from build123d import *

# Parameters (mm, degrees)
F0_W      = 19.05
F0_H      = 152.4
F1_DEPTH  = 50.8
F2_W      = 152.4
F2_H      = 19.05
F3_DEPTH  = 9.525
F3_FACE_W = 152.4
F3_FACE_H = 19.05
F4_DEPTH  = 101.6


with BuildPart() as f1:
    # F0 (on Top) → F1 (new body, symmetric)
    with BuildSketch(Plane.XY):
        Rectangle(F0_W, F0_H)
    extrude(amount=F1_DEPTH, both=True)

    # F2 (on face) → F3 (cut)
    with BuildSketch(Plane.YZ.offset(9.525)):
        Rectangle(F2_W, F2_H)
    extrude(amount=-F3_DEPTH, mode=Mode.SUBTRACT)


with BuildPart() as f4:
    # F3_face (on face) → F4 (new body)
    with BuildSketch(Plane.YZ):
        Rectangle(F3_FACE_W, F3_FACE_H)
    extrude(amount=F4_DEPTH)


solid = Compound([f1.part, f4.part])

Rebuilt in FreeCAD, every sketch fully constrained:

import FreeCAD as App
import Part
import Sketcher
Q = App.Units.Quantity

doc = App.newDocument("Part")
params = doc.addObject("Spreadsheet::Sheet", "Params")
for row, (alias, value) in enumerate([
    ("sketch1_height", "6 in"),
    ("sketch1_width", "0.75 in"),
    ("pad1_length", "4 in"),
    ("sketch2_width", "6 in"),
    ("sketch2_height", "0.75 in"),
    ("pocket1_length", "0.375 in"),
    ("sketch3_width", "6 in"),
    ("sketch3_height", "0.75 in"),
    ("pad2_length", "4 in"),
], start=1):
    params.set(f"A{row}", alias)
    params.set(f"B{row}", "=" + value)
    params.setAlias(f"B{row}", alias)

body = doc.addObject("PartDesign::Body", "Body")

# Sketch on XY plane
sketch1 = body.newObject("Sketcher::SketchObject", "Sketch")
sketch1.AttachmentSupport = (doc.getObject("XY_Plane"), [""])
sketch1.MapMode = "FlatFace"
sketch1.addGeometry([
    Part.LineSegment(App.Vector(-10, 76, 0), App.Vector(-10, -76, 0)),
    Part.LineSegment(App.Vector(-10, -76, 0), App.Vector(10, -76, 0)),
    Part.LineSegment(App.Vector(10, -76, 0), App.Vector(10, 76, 0)),
    Part.LineSegment(App.Vector(10, 76, 0), App.Vector(-10, 76, 0)),
], False)
sketch1.addConstraint([
    Sketcher.Constraint("Coincident", 0, 2, 1, 1),
    Sketcher.Constraint("Coincident", 1, 2, 2, 1),
    Sketcher.Constraint("Coincident", 2, 2, 3, 1),
    Sketcher.Constraint("Coincident", 3, 2, 0, 1),
    Sketcher.Constraint("Vertical", 0),
    Sketcher.Constraint("Horizontal", 1),
    Sketcher.Constraint("Vertical", 2),
    Sketcher.Constraint("Horizontal", 3),
    Sketcher.Constraint("Symmetric", 0, 2, 2, 2, -1, 1),
    Sketcher.Constraint("DistanceY", 0, 2, 0, 1, Q("6 in")),
    Sketcher.Constraint("DistanceX", 1, 1, 1, 2, Q("0.75 in")),
])
sketch1.setExpression("Constraints[9]", "Params.sketch1_height")
sketch1.setExpression("Constraints[10]", "Params.sketch1_width")
pad1 = body.newObject("PartDesign::Pad", "Pad")
pad1.Profile = sketch1
pad1.setExpression("Length", "Params.pad1_length")
pad1.Midplane = True

# Sketch on YZ plane
sketch2 = body.newObject("Sketcher::SketchObject", "Sketch001")
sketch2.AttachmentSupport = (doc.getObject("YZ_Plane"), [""])
sketch2.MapMode = "FlatFace"
sketch2.AttachmentOffset = App.Placement(App.Vector(0, 0, 0.375 * 25.4), App.Rotation())
sketch2.addGeometry([
    Part.LineSegment(App.Vector(-76, 10, 0), App.Vector(-76, -10, 0)),
    Part.LineSegment(App.Vector(-76, -10, 0), App.Vector(76, -10, 0)),
    Part.LineSegment(App.Vector(76, -10, 0), App.Vector(76, 10, 0)),
    Part.LineSegment(App.Vector(76, 10, 0), App.Vector(-76, 10, 0)),
], False)
sketch2.addConstraint([
    Sketcher.Constraint("Coincident", 0, 2, 1, 1),
    Sketcher.Constraint("Coincident", 1, 2, 2, 1),
    Sketcher.Constraint("Coincident", 2, 2, 3, 1),
    Sketcher.Constraint("Coincident", 3, 2, 0, 1),
    Sketcher.Constraint("Vertical", 0),
    Sketcher.Constraint("Horizontal", 1),
    Sketcher.Constraint("Vertical", 2),
    Sketcher.Constraint("Horizontal", 3),
    Sketcher.Constraint("Symmetric", 0, 2, 2, 2, -1, 1),
    Sketcher.Constraint("DistanceX", 1, 1, 1, 2, Q("6 in")),
    Sketcher.Constraint("DistanceY", 0, 2, 0, 1, Q("0.75 in")),
])
sketch2.setExpression("Constraints[9]", "Params.sketch2_width")
sketch2.setExpression("Constraints[10]", "Params.sketch2_height")
pocket1 = body.newObject("PartDesign::Pocket", "Pocket")
pocket1.Profile = sketch2
pocket1.setExpression("Length", "Params.pocket1_length")
body2 = doc.addObject("PartDesign::Body", "Body001")

# Sketch on YZ plane
sketch3 = body2.newObject("Sketcher::SketchObject", "Sketch002")
sketch3.AttachmentSupport = (doc.getObject("YZ_Plane001"), [""])
sketch3.MapMode = "FlatFace"
sketch3.addGeometry([
    Part.LineSegment(App.Vector(-76, 10, 0), App.Vector(-76, -10, 0)),
    Part.LineSegment(App.Vector(-76, -10, 0), App.Vector(76, -10, 0)),
    Part.LineSegment(App.Vector(76, -10, 0), App.Vector(76, 10, 0)),
    Part.LineSegment(App.Vector(76, 10, 0), App.Vector(-76, 10, 0)),
], False)
sketch3.addConstraint([
    Sketcher.Constraint("Coincident", 0, 2, 1, 1),
    Sketcher.Constraint("Coincident", 1, 2, 2, 1),
    Sketcher.Constraint("Coincident", 2, 2, 3, 1),
    Sketcher.Constraint("Coincident", 3, 2, 0, 1),
    Sketcher.Constraint("Vertical", 0),
    Sketcher.Constraint("Horizontal", 1),
    Sketcher.Constraint("Vertical", 2),
    Sketcher.Constraint("Horizontal", 3),
    Sketcher.Constraint("Symmetric", 0, 2, 2, 2, -1, 1),
    Sketcher.Constraint("DistanceX", 1, 1, 1, 2, Q("6 in")),
    Sketcher.Constraint("DistanceY", 0, 2, 0, 1, Q("0.75 in")),
])
sketch3.setExpression("Constraints[9]", "Params.sketch3_width")
sketch3.setExpression("Constraints[10]", "Params.sketch3_height")
pad2 = body2.newObject("PartDesign::Pad", "Pad001")
pad2.Profile = sketch3
pad2.setExpression("Length", "Params.pad2_length")

doc.recompute()
